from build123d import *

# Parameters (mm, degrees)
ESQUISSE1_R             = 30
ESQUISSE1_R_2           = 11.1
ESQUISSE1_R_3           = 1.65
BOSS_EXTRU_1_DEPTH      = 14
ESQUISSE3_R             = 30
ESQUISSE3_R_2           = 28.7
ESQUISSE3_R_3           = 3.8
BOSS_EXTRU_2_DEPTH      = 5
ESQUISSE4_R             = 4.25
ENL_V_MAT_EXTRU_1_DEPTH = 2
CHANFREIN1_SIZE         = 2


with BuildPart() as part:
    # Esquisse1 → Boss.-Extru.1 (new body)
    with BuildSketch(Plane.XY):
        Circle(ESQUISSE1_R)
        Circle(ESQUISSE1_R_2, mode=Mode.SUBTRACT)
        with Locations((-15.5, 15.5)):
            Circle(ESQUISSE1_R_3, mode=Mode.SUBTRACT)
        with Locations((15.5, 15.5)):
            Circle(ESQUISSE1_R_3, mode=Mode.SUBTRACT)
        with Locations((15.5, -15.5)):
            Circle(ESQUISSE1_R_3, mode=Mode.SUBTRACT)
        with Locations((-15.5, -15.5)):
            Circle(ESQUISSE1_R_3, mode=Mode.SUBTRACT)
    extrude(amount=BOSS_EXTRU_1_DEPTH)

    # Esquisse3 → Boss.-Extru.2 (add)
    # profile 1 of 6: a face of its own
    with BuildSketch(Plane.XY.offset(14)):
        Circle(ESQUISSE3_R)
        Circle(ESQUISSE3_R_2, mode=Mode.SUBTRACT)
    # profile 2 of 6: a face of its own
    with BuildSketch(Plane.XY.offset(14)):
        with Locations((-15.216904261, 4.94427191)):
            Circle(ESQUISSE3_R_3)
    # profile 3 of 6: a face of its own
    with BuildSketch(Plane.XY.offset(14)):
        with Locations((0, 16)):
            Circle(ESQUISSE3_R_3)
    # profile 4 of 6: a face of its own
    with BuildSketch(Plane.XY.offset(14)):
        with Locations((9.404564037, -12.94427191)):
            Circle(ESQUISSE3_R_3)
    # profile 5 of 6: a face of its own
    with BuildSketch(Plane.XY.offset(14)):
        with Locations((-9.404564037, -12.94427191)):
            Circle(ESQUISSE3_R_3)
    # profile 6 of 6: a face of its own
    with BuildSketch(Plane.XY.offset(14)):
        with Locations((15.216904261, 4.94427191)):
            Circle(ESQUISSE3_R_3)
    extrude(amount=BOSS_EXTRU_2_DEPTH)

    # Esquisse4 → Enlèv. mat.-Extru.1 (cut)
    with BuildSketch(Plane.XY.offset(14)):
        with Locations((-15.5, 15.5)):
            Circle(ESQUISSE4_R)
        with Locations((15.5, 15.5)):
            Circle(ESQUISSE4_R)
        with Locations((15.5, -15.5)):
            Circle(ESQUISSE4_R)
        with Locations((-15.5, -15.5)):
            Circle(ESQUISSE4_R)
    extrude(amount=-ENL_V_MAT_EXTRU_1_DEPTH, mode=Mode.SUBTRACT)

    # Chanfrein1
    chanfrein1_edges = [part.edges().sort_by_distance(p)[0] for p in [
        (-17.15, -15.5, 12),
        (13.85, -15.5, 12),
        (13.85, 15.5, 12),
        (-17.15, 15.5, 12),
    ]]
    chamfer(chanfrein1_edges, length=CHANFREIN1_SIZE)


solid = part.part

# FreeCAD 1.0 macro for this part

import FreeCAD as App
import Part
import Sketcher


def edges_at(feature, points):
    """Names of the edges that pass closest to the given points."""
    edges = feature.Shape.Edges
    near = lambda p: min(range(len(edges)), key=lambda i: edges[i].distToShape(Part.Vertex(*p))[0])
    return sorted({f"Edge{near(p) + 1}" for p in points})

doc = App.newDocument("Part")
body = doc.addObject("PartDesign::Body", "Body")

# Sketch on XY plane
sketch1 = doc.addObject("Sketcher::SketchObject", "Sketch")
body.addObject(sketch1)
sketch1.AttachmentSupport = (doc.XY_Plane, [""])
sketch1.MapMode = "FlatFace"
sketch1.addGeometry(Part.Circle(App.Vector(0, 0, 0), App.Vector(0, 0, 1), 30), False)
sketch1.addGeometry(Part.Circle(App.Vector(-15.5, -15.5, 0), App.Vector(0, 0, 1), 1.65), False)
sketch1.addGeometry(Part.Circle(App.Vector(15.5, -15.5, 0), App.Vector(0, 0, 1), 1.65), False)
sketch1.addGeometry(Part.Circle(App.Vector(-15.5, 15.5, 0), App.Vector(0, 0, 1), 1.65), False)
sketch1.addGeometry(Part.Circle(App.Vector(0, 0, 0), App.Vector(0, 0, 1), 11.1), False)
sketch1.addGeometry(Part.Circle(App.Vector(15.5, 15.5, 0), App.Vector(0, 0, 1), 1.65), False)
sketch1.addConstraint(Sketcher.Constraint("Coincident", 0, 3, -1, 1))
sketch1.addConstraint(Sketcher.Constraint("Coincident", 4, 3, -1, 1))
sketch1.addConstraint(Sketcher.Constraint("Equal", 1, 2))
sketch1.addConstraint(Sketcher.Constraint("Equal", 2, 3))
sketch1.addConstraint(Sketcher.Constraint("Equal", 3, 5))
sketch1.addConstraint(Sketcher.Constraint("Symmetric", 2, 3, 3, 3, -1, 1))
sketch1.addConstraint(Sketcher.Constraint("Symmetric", 1, 3, 5, 3, -1, 1))
sketch1.addConstraint(Sketcher.Constraint("Symmetric", 1, 3, 2, 3, -2))
sketch1.addConstraint(Sketcher.Constraint("Diameter", 0, 60.0))
sketch1.addConstraint(Sketcher.Constraint("Diameter", 1, 3.3))
sketch1.addConstraint(Sketcher.Constraint("Diameter", 4, 22.2))
sketch1.addConstraint(Sketcher.Constraint("DistanceX", 1, 3, 2, 3, 31.0))
sketch1.addConstraint(Sketcher.Constraint("DistanceY", 1, 3, 3, 3, 31.0))
pad1 = doc.addObject("PartDesign::Pad", "Pad")
body.addObject(pad1)
pad1.Profile = sketch1
pad1.Length = 14

# Sketch on XY plane
sketch2 = doc.addObject("Sketcher::SketchObject", "Sketch001")
body.addObject(sketch2)
sketch2.AttachmentSupport = (doc.XY_Plane, [""])
sketch2.MapMode = "FlatFace"
sketch2.AttachmentOffset = App.Placement(App.Vector(0, 0, 14), App.Rotation())
sketch2.addGeometry(Part.Circle(App.Vector(0, 0, 0), App.Vector(0, 0, 1), 30), False)
sketch2.addGeometry(Part.Circle(App.Vector(0, 0, 0), App.Vector(0, 0, 1), 28.7), False)
sketch2.addGeometry(Part.Circle(App.Vector(-15.216904, 4.944272, 0), App.Vector(0, 0, 1), 3.8), False)
sketch2.addGeometry(Part.Circle(App.Vector(0, 16, 0), App.Vector(0, 0, 1), 3.8), False)
sketch2.addGeometry(Part.Circle(App.Vector(9.404564, -12.944272, 0), App.Vector(0, 0, 1), 3.8), False)
sketch2.addGeometry(Part.Circle(App.Vector(-9.404564, -12.944272, 0), App.Vector(0, 0, 1), 3.8), False)
sketch2.addGeometry(Part.Circle(App.Vector(15.216904, 4.944272, 0), App.Vector(0, 0, 1), 3.8), False)
sketch2.addConstraint(Sketcher.Constraint("Coincident", 0, 3, -1, 1))
sketch2.addConstraint(Sketcher.Constraint("Coincident", 1, 3, -1, 1))
sketch2.addConstraint(Sketcher.Constraint("Equal", 2, 3))
sketch2.addConstraint(Sketcher.Constraint("Equal", 3, 4))
sketch2.addConstraint(Sketcher.Constraint("Equal", 4, 5))
sketch2.addConstraint(Sketcher.Constraint("Equal", 5, 6))
sketch2.addConstraint(Sketcher.Constraint("Symmetric", 4, 3, 5, 3, -2))
sketch2.addConstraint(Sketcher.Constraint("Symmetric", 2, 3, 6, 3, -2))
sketch2.addConstraint(Sketcher.Constraint("PointOnObject", 3, 3, -2))
sketch2.addConstraint(Sketcher.Constraint("Diameter", 0, 60.0))
sketch2.addConstraint(Sketcher.Constraint("Diameter", 1, 57.4))
sketch2.addConstraint(Sketcher.Constraint("Diameter", 2, 7.6))
sketch2.addConstraint(Sketcher.Constraint("DistanceY", -1, 1, 3, 3, 16.0))
sketch2.addConstraint(Sketcher.Constraint("DistanceY", -1, 1, 2, 3, 4.944272))
sketch2.addConstraint(Sketcher.Constraint("DistanceY", 4, 3, -1, 1, 12.944272))
sketch2.addConstraint(Sketcher.Constraint("DistanceX", 2, 3, 4, 3, 24.621468))
sketch2.addConstraint(Sketcher.Constraint("DistanceX", 2, 3, 5, 3, 5.81234))
pad2 = doc.addObject("PartDesign::Pad", "Pad001")
body.addObject(pad2)
pad2.Profile = sketch2
pad2.Length = 5

# Sketch on XY plane
sketch3 = doc.addObject("Sketcher::SketchObject", "Sketch002")
body.addObject(sketch3)
sketch3.AttachmentSupport = (doc.XY_Plane, [""])
sketch3.MapMode = "FlatFace"
sketch3.AttachmentOffset = App.Placement(App.Vector(0, 0, 14), App.Rotation())
sketch3.addGeometry(Part.Circle(App.Vector(-15.5, 15.5, 0), App.Vector(0, 0, 1), 4.25), False)
sketch3.addGeometry(Part.Circle(App.Vector(15.5, 15.5, 0), App.Vector(0, 0, 1), 4.25), False)
sketch3.addGeometry(Part.Circle(App.Vector(15.5, -15.5, 0), App.Vector(0, 0, 1), 4.25), False)
sketch3.addGeometry(Part.Circle(App.Vector(-15.5, -15.5, 0), App.Vector(0, 0, 1), 4.25), False)
sketch3.addConstraint(Sketcher.Constraint("Equal", 0, 1))
sketch3.addConstraint(Sketcher.Constraint("Equal", 1, 2))
sketch3.addConstraint(Sketcher.Constraint("Equal", 2, 3))
sketch3.addConstraint(Sketcher.Constraint("Symmetric", 0, 3, 2, 3, -1, 1))
sketch3.addConstraint(Sketcher.Constraint("Symmetric", 1, 3, 3, 3, -1, 1))
sketch3.addConstraint(Sketcher.Constraint("Symmetric", 0, 3, 1, 3, -2))
sketch3.addConstraint(Sketcher.Constraint("Diameter", 0, 8.5))
sketch3.addConstraint(Sketcher.Constraint("DistanceX", 0, 3, 1, 3, 31.0))
sketch3.addConstraint(Sketcher.Constraint("DistanceY", 2, 3, 1, 3, 31.0))
pocket1 = doc.addObject("PartDesign::Pocket", "Pocket")
body.addObject(pocket1)
pocket1.Profile = sketch3
pocket1.Length = 2
doc.recompute()

chamfer = doc.addObject("PartDesign::Chamfer", "Chamfer")
body.addObject(chamfer)
chamfer.Base = (pocket1, edges_at(pocket1, [
    (-17.15, -15.5, 12),
    (13.85, -15.5, 12),
    (13.85, 15.5, 12),
    (-17.15, 15.5, 12),
]))
chamfer.Size = 2

doc.recompute()
